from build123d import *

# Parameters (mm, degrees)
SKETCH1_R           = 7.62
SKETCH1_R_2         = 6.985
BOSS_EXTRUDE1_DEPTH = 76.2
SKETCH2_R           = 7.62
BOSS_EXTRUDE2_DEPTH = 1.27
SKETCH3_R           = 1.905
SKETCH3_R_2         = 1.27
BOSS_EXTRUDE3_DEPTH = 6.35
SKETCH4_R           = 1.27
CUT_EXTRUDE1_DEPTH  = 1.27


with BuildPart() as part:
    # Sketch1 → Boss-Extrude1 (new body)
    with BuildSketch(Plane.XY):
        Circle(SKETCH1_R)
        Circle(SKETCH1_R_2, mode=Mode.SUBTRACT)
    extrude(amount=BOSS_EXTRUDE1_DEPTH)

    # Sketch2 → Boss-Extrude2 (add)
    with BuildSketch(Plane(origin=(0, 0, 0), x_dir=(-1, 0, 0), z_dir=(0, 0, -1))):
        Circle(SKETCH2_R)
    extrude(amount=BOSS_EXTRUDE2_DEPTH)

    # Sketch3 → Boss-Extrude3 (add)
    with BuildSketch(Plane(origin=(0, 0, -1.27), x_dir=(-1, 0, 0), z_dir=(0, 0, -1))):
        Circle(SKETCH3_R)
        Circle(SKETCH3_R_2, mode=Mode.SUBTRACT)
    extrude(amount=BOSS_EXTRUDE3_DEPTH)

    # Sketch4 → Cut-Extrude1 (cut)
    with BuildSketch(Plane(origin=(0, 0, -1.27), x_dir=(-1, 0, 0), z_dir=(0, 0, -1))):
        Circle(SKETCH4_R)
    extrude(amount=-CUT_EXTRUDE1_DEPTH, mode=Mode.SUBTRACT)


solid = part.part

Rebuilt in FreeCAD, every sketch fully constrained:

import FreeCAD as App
import Part
import Sketcher
from FreeCAD import Vector
Q = App.Units.Quantity

doc = App.newDocument("Part")
body = doc.addObject("PartDesign::Body", "Body")

# Sketch on XY plane
sketch1 = body.newObject("Sketcher::SketchObject", "Sketch")
sketch1.AttachmentSupport = (doc.getObject("XY_Plane"), [""])
sketch1.MapMode = "FlatFace"
sketch1.addGeometry(Part.Circle(Vector(0, 0, 0), Vector(0, 0, 1), 8), False)
sketch1.addGeometry(Part.Circle(Vector(0, 0, 0), Vector(0, 0, 1), 7), False)
sketch1.addConstraint(Sketcher.Constraint("Coincident", 0, 3, -1, 1))
sketch1.addConstraint(Sketcher.Constraint("Coincident", 1, 3, -1, 1))
sketch1.addConstraint(Sketcher.Constraint("Diameter", 0, Q("0.6 in")))
sketch1.addConstraint(Sketcher.Constraint("Diameter", 1, Q("0.55 in")))
pad1 = body.newObject("PartDesign::Pad", "Pad")
pad1.Profile = sketch1
pad1.Length = Q("3 in")

# Sketch on XY plane
sketch2 = body.newObject("Sketcher::SketchObject", "Sketch001")
sketch2.AttachmentSupport = (doc.getObject("XY_Plane"), [""])
sketch2.MapMode = "FlatFace"
sketch2.addGeometry(Part.Circle(Vector(0, 0, 0), Vector(0, 0, 1), 8), False)
sketch2.addConstraint(Sketcher.Constraint("Coincident", 0, 3, -1, 1))
sketch2.addConstraint(Sketcher.Constraint("Diameter", 0, Q("0.6 in")))
pad2 = body.newObject("PartDesign::Pad", "Pad001")
pad2.Profile = sketch2
pad2.Length = Q("0.05 in")
pad2.Reversed = True

# Sketch on XY plane
sketch3 = body.newObject("Sketcher::SketchObject", "Sketch002")
sketch3.AttachmentSupport = (doc.getObject("XY_Plane"), [""])
sketch3.MapMode = "FlatFace"
sketch3.AttachmentOffset = App.Placement(Vector(0, 0, -0.05 * 25.4), App.Rotation())
sketch3.addGeometry(Part.Circle(Vector(0, 0, 0), Vector(0, 0, 1), 1.9), False)
sketch3.addGeometry(Part.Circle(Vector(0, 0, 0), Vector(0, 0, 1), 1.3), False)
sketch3.addConstraint(Sketcher.Constraint("Coincident", 0, 3, -1, 1))
sketch3.addConstraint(Sketcher.Constraint("Coincident", 1, 3, -1, 1))
sketch3.addConstraint(Sketcher.Constraint("Diameter", 1, Q("0.1 in")))
sketch3.addConstraint(Sketcher.Constraint("Diameter", 0, Q("0.15 in")))
pad3 = body.newObject("PartDesign::Pad", "Pad002")
pad3.Profile = sketch3
pad3.Length = Q("0.25 in")
pad3.Reversed = True

# Sketch on XY plane
sketch4 = body.newObject("Sketcher::SketchObject", "Sketch003")
sketch4.AttachmentSupport = (doc.getObject("XY_Plane"), [""])
sketch4.MapMode = "FlatFace"
sketch4.AttachmentOffset = App.Placement(Vector(0, 0, -0.05 * 25.4), App.Rotation())
sketch4.addGeometry(Part.Circle(Vector(0, 0, 0), Vector(0, 0, 1), 1.3), False)
sketch4.addConstraint(Sketcher.Constraint("Coincident", 0, 3, -1, 1))
sketch4.addConstraint(Sketcher.Constraint("Diameter", 0, Q("0.1 in")))
pocket1 = body.newObject("PartDesign::Pocket", "Pocket")
pocket1.Profile = sketch4
pocket1.Length = Q("0.05 in")
pocket1.Reversed = True

doc.recompute()
